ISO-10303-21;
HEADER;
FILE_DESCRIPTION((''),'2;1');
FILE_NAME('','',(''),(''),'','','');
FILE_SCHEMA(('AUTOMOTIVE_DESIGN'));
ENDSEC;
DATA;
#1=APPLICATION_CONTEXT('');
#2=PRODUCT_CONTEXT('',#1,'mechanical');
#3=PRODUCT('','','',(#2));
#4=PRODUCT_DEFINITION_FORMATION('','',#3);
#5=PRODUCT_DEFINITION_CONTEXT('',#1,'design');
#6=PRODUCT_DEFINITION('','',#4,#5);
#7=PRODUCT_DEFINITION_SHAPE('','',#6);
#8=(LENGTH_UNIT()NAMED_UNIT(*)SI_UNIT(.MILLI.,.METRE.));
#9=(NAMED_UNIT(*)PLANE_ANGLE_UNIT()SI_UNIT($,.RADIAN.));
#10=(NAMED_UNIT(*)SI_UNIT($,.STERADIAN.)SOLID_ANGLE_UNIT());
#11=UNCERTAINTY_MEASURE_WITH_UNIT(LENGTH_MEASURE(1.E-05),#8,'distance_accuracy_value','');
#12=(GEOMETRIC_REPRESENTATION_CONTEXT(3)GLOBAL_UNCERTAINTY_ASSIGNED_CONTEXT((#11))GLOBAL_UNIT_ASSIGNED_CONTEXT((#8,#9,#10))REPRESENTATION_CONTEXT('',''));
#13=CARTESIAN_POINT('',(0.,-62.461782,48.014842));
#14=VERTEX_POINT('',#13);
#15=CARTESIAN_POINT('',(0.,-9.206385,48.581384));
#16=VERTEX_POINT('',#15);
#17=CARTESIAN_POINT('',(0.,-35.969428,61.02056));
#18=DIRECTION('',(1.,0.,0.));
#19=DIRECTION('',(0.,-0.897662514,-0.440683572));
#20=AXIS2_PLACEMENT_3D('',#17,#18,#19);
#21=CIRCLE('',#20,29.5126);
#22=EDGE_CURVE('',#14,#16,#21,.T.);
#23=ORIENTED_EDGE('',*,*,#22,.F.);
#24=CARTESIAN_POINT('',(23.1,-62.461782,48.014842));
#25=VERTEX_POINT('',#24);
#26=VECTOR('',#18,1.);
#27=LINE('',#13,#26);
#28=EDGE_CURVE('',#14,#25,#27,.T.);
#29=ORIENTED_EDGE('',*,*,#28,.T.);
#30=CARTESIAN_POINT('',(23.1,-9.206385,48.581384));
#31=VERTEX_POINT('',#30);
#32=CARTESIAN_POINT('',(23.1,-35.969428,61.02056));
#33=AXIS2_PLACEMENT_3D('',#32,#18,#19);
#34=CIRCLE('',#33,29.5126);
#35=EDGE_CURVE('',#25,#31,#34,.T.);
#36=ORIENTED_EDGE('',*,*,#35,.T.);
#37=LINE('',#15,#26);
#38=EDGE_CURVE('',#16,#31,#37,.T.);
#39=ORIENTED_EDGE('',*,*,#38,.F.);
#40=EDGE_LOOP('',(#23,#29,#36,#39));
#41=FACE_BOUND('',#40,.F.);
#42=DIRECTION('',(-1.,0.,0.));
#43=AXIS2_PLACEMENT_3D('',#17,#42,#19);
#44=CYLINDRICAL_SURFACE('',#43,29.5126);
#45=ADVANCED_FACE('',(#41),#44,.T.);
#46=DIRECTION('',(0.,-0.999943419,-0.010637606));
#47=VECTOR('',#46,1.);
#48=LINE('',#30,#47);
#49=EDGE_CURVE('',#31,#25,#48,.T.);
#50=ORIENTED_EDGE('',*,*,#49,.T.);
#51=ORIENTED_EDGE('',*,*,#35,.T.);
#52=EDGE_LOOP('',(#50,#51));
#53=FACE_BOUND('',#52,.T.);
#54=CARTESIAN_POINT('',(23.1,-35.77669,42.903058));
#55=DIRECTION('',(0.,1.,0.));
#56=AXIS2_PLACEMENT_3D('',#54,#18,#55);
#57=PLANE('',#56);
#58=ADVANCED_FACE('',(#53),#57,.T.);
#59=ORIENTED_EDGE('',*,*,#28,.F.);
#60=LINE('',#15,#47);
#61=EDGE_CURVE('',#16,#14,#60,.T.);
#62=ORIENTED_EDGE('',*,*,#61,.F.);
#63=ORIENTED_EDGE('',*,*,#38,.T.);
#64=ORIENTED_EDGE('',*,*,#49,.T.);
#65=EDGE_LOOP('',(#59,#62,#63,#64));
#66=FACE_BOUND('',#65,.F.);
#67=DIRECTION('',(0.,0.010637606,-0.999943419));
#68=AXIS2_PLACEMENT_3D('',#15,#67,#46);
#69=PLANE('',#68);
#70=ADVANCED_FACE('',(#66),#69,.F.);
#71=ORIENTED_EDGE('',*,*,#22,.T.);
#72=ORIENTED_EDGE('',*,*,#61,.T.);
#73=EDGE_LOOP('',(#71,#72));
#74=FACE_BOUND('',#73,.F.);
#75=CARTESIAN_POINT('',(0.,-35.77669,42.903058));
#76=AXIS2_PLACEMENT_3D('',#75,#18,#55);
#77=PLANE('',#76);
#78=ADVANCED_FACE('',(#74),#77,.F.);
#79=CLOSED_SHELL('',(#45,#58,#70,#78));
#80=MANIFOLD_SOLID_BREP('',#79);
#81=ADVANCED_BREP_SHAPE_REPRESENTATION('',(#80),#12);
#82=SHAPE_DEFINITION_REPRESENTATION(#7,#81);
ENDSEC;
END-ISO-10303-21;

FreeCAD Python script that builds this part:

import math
import FreeCAD as App
import Part
import Sketcher

V = App.Vector

doc = App.newDocument("Part")
body = doc.addObject("PartDesign::Body", "Body")

# Sketch on YZ plane
sketch1 = body.newObject("Sketcher::SketchObject", "Sketch")
sketch1.AttachmentSupport = (doc.getObject("YZ_Plane"), [""])
sketch1.MapMode = "FlatFace"
sketch1.addGeometry(Part.LineSegment(V(-9, 49, 0), V(-62, 48, 0)), False)
sketch1.addGeometry(Part.ArcOfCircle(Part.Circle(V(-36, 61, 0), V(0, 0, 1), 30), math.radians(-154), math.radians(-25)), False)
sketch1.addConstraint(Sketcher.Constraint("Coincident", 0, 1, 1, 2))
sketch1.addConstraint(Sketcher.Constraint("Coincident", 1, 1, 0, 2))
sketch1.addConstraint(Sketcher.Constraint("Radius", 1, 29.5126))
sketch1.addConstraint(Sketcher.Constraint("Distance", 0, 53.25841))
sketch1.addConstraint(Sketcher.Constraint("DistanceY", -1, 1, 1, 3, 61.02056))
sketch1.addConstraint(Sketcher.Constraint("DistanceX", 1, 1, -1, 1, 62.461782))
sketch1.addConstraint(Sketcher.Constraint("DistanceY", 1, 1, 0, 1, 0.566542))
pad1 = body.newObject("PartDesign::Pad", "Pad")
pad1.Profile = sketch1
pad1.Length = 23.1

doc.recompute()
